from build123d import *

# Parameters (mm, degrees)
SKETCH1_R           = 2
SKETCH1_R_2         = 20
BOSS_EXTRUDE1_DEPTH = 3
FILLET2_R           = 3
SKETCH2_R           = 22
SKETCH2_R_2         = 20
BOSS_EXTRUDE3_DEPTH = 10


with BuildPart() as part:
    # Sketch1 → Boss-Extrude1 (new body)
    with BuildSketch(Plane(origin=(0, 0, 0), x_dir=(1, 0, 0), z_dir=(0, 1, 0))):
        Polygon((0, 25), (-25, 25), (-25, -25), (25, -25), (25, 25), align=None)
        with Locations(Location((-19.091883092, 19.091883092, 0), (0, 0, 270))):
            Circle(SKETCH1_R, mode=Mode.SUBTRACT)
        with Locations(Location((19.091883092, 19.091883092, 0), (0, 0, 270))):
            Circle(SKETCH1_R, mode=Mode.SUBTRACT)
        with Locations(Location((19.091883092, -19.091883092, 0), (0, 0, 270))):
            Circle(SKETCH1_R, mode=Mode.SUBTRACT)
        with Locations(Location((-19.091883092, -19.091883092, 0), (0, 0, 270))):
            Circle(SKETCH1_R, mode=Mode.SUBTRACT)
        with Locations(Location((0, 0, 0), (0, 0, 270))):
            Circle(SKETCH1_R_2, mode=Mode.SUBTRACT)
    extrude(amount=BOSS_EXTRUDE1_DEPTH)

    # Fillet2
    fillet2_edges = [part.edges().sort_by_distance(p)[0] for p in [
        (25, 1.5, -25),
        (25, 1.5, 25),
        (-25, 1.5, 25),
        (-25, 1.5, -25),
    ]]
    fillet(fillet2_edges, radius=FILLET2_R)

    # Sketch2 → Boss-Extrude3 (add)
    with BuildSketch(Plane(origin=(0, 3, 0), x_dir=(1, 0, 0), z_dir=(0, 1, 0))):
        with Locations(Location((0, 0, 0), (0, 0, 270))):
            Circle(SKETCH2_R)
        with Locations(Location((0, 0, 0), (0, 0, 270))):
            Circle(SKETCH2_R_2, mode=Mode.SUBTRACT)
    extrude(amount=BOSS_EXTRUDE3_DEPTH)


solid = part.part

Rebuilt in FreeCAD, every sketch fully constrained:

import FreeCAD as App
import Part
import Sketcher

V = App.Vector


def edges_at(feature, points):
    """Names of the edges that pass closest to the given points."""
    edges = feature.Shape.Edges
    near = lambda p: min(range(len(edges)), key=lambda i: edges[i].distToShape(Part.Vertex(*p))[0])
    return sorted({f"Edge{near(p) + 1}" for p in points})

doc = App.newDocument("Part")
params = doc.addObject("Spreadsheet::Sheet", "Params")
for row, (alias, value) in enumerate([
    ("sketch1_diameter", "4 mm"),
    ("sketch1_diameter2", "40 mm"),
    ("sketch1_width", "50 mm"),
    ("pad1_length", "3 mm"),
    ("fillet_radius", "3 mm"),
    ("sketch2_diameter", "44 mm"),
    ("sketch2_diameter2", "40 mm"),
    ("pad2_length", "10 mm"),
], start=1):
    params.set(f"A{row}", alias)
    params.set(f"B{row}", "=" + value)
    params.setAlias(f"B{row}", alias)

body = doc.addObject("PartDesign::Body", "Body")

# Sketch on XZ plane
sketch1 = doc.addObject("Sketcher::SketchObject", "Sketch")
body.addObject(sketch1)
sketch1.AttachmentSupport = (doc.XZ_Plane, [""])
sketch1.MapMode = "FlatFace"
sketch1.addGeometry([
    Part.LineSegment(V(-25, -25, 0), V(-25, 25, 0)),  # 0
    Part.LineSegment(V(-25, 25, 0), V(25, 25, 0)),  # 1
    Part.LineSegment(V(25, 25, 0), V(25, -25, 0)),  # 2
    Part.LineSegment(V(25, -25, 0), V(-25, -25, 0)),  # 3
    Part.Circle(V(-19.091883, 19.091883, 0), V(0, 0, 1), 2),  # 4
    Part.Circle(V(0, 0, 0), V(0, 0, 1), 20),  # 5
    Part.Circle(V(19.091883, 19.091883, 0), V(0, 0, 1), 2),  # 6
    Part.Circle(V(-19.091883, -19.091883, 0), V(0, 0, 1), 2),  # 7
    Part.Circle(V(19.091883, -19.091883, 0), V(0, 0, 1), 2),  # 8
], False)
sketch1.addConstraint([
    Sketcher.Constraint("Coincident", 0, 2, 1, 1),
    Sketcher.Constraint("Coincident", 1, 2, 2, 1),
    Sketcher.Constraint("Coincident", 2, 2, 3, 1),
    Sketcher.Constraint("Coincident", 3, 2, 0, 1),
    Sketcher.Constraint("Vertical", 0),
    Sketcher.Constraint("Horizontal", 1),
    Sketcher.Constraint("Vertical", 2),
    Sketcher.Constraint("Horizontal", 3),
    Sketcher.Constraint("Coincident", 5, 3, -1, 1),
    Sketcher.Constraint("Equal", 4, 6),
    Sketcher.Constraint("Equal", 6, 7),
    Sketcher.Constraint("Equal", 7, 8),
    Sketcher.Constraint("Symmetric", 6, 3, 7, 3, -1, 1),
    Sketcher.Constraint("Symmetric", 4, 3, 8, 3, -1, 1),
    Sketcher.Constraint("Symmetric", 0, 2, 2, 2, -1, 1),
    Sketcher.Constraint("Symmetric", 4, 3, 6, 3, -2),
    Sketcher.Constraint("Equal", 3, 0),
    Sketcher.Constraint("Diameter", 4, 4.0),
    Sketcher.Constraint("Diameter", 5, 40.0),
    Sketcher.Constraint("DistanceX", 1, 1, 1, 2, 50.0),
    Sketcher.Constraint("DistanceX", 4, 3, -1, 1, 19.091883),
    Sketcher.Constraint("DistanceY", -1, 1, 4, 3, 19.091883),
])
sketch1.setExpression("Constraints[17]", "Params.sketch1_diameter")
sketch1.setExpression("Constraints[18]", "Params.sketch1_diameter2")
sketch1.setExpression("Constraints[19]", "Params.sketch1_width")
pad1 = doc.addObject("PartDesign::Pad", "Pad")
body.addObject(pad1)
pad1.Profile = sketch1
pad1.setExpression("Length", "Params.pad1_length")
pad1.Reversed = True
doc.recompute()

fillet = doc.addObject("PartDesign::Fillet", "Fillet")
body.addObject(fillet)
fillet.Base = (pad1, edges_at(pad1, [
    (25, 1.5, -25),
    (25, 1.5, 25),
    (-25, 1.5, 25),
    (-25, 1.5, -25),
]))
fillet.setExpression("Radius", "Params.fillet_radius")

# Sketch on XZ plane
sketch2 = doc.addObject("Sketcher::SketchObject", "Sketch001")
body.addObject(sketch2)
sketch2.AttachmentSupport = (doc.XZ_Plane, [""])
sketch2.MapMode = "FlatFace"
sketch2.AttachmentOffset = App.Placement(V(0, 0, -3), App.Rotation())
sketch2.addGeometry([
    Part.Circle(V(0, 0, 0), V(0, 0, 1), 22),
    Part.Circle(V(0, 0, 0), V(0, 0, 1), 20),
], False)
sketch2.addConstraint([
    Sketcher.Constraint("Coincident", 0, 3, -1, 1),
    Sketcher.Constraint("Coincident", 1, 3, -1, 1),
    Sketcher.Constraint("Diameter", 0, 44.0),
    Sketcher.Constraint("Diameter", 1, 40.0),
])
sketch2.setExpression("Constraints[2]", "Params.sketch2_diameter")
sketch2.setExpression("Constraints[3]", "Params.sketch2_diameter2")
pad2 = doc.addObject("PartDesign::Pad", "Pad001")
body.addObject(pad2)
pad2.Profile = sketch2
pad2.setExpression("Length", "Params.pad2_length")
pad2.Reversed = True

doc.recompute()
